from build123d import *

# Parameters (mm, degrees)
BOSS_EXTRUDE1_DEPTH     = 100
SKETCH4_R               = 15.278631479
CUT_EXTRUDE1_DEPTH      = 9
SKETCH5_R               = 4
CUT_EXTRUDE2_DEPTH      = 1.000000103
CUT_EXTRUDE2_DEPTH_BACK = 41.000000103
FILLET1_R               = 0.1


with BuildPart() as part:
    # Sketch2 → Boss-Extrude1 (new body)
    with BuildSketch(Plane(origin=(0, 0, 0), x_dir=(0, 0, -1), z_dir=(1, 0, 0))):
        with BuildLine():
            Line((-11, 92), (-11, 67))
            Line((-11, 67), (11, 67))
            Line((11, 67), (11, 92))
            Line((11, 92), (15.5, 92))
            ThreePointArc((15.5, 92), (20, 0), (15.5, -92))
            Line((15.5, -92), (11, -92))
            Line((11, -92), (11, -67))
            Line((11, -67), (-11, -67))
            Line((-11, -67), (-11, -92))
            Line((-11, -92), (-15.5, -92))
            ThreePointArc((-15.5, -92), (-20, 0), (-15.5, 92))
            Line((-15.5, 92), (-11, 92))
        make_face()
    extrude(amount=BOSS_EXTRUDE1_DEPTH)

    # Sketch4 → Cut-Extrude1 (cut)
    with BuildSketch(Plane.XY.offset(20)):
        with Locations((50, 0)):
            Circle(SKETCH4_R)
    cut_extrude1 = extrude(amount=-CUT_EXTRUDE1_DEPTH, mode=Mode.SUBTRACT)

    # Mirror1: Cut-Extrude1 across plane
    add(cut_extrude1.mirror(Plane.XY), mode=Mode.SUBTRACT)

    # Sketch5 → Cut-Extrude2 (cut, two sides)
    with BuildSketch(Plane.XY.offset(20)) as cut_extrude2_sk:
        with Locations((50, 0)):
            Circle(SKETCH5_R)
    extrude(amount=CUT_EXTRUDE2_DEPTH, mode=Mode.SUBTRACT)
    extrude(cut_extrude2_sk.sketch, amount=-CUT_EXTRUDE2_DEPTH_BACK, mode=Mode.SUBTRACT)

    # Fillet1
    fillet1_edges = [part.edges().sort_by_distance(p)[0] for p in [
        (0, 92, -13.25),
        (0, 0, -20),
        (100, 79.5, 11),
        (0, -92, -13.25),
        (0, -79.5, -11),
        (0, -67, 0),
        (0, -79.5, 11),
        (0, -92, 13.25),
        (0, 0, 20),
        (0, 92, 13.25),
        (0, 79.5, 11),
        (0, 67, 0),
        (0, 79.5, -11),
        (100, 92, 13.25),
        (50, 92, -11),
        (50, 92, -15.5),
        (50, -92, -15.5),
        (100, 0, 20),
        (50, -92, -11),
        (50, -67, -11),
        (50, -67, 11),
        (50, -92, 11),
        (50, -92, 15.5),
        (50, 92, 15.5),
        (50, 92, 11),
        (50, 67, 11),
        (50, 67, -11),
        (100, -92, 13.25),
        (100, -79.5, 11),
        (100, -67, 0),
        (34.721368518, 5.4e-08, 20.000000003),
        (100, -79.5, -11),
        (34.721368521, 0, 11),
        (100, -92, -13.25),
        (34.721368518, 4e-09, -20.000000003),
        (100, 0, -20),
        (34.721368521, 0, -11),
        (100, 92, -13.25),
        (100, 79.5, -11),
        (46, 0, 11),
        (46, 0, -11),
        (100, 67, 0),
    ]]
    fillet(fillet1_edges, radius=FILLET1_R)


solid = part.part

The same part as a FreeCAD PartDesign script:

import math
import FreeCAD as App
import Part
import Sketcher

doc = App.newDocument("Part")
body = doc.addObject("PartDesign::Body", "Body")

# Sketch on YZ plane
sketch1 = body.newObject("Sketcher::SketchObject", "Sketch")
sketch1.AttachmentSupport = (doc.getObject("YZ_Plane"), [""])
sketch1.MapMode = "FlatFace"
sketch1.addGeometry([
    Part.LineSegment(App.Vector(67, 11, 0), App.Vector(92, 11, 0)),  # 0
    Part.LineSegment(App.Vector(92, 11, 0), App.Vector(92, 15.5, 0)),  # 1
    Part.ArcOfCircle(Part.Circle(App.Vector(0, -922.7, 0), App.Vector(0, 0, 1), 942.7), math.radians(84.4), math.radians(95.6)),  # 2
    Part.LineSegment(App.Vector(-92, 15.5, 0), App.Vector(-92, 11, 0)),  # 3
    Part.LineSegment(App.Vector(-92, 11, 0), App.Vector(-67, 11, 0)),  # 4
    Part.LineSegment(App.Vector(-67, 11, 0), App.Vector(-67, -11, 0)),  # 5
    Part.LineSegment(App.Vector(-67, -11, 0), App.Vector(-92, -11, 0)),  # 6
    Part.LineSegment(App.Vector(-92, -11, 0), App.Vector(-92, -15.5, 0)),  # 7
    Part.ArcOfCircle(Part.Circle(App.Vector(0, 922.7, 0), App.Vector(0, 0, 1), 942.7), math.radians(-95.6), math.radians(-84.4)),  # 8
    Part.LineSegment(App.Vector(92, -15.5, 0), App.Vector(92, -11, 0)),  # 9
    Part.LineSegment(App.Vector(92, -11, 0), App.Vector(67, -11, 0)),  # 10
    Part.LineSegment(App.Vector(67, -11, 0), App.Vector(67, 11, 0)),  # 11
], False)
sketch1.addConstraint([
    Sketcher.Constraint("Coincident", 0, 2, 1, 1),
    Sketcher.Constraint("Coincident", 1, 2, 2, 1),
    Sketcher.Constraint("Coincident", 2, 2, 3, 1),
    Sketcher.Constraint("Coincident", 3, 2, 4, 1),
    Sketcher.Constraint("Coincident", 4, 2, 5, 1),
    Sketcher.Constraint("Coincident", 5, 2, 6, 1),
    Sketcher.Constraint("Coincident", 6, 2, 7, 1),
    Sketcher.Constraint("Coincident", 7, 2, 8, 1),
    Sketcher.Constraint("Coincident", 8, 2, 9, 1),
    Sketcher.Constraint("Coincident", 9, 2, 10, 1),
    Sketcher.Constraint("Coincident", 10, 2, 11, 1),
    Sketcher.Constraint("Coincident", 11, 2, 0, 1),
    Sketcher.Constraint("Horizontal", 0),
    Sketcher.Constraint("Vertical", 1),
    Sketcher.Constraint("Vertical", 3),
    Sketcher.Constraint("Horizontal", 4),
    Sketcher.Constraint("Vertical", 5),
    Sketcher.Constraint("Horizontal", 6),
    Sketcher.Constraint("Vertical", 7),
    Sketcher.Constraint("Vertical", 9),
    Sketcher.Constraint("Horizontal", 10),
    Sketcher.Constraint("Vertical", 11),
    Sketcher.Constraint("Equal", 2, 8),
    Sketcher.Constraint("Symmetric", 2, 3, 8, 3, -1, 1),
    Sketcher.Constraint("Symmetric", 0, 2, 6, 2, -1, 1),
    Sketcher.Constraint("Symmetric", 3, 2, 9, 2, -1, 1),
    Sketcher.Constraint("Symmetric", 0, 2, 3, 2, -2),
    Sketcher.Constraint("PointOnObject", 2, 3, -2),
    Sketcher.Constraint("Equal", 0, 4),
    Sketcher.Constraint("DistanceX", 0, 1, 0, 2, 25.0),
    Sketcher.Constraint("DistanceY", 5, 2, 5, 1, 22.0),
    Sketcher.Constraint("DistanceY", 1, 1, 1, 2, 4.5),
    Sketcher.Constraint("DistanceX", -1, 1, 0, 2, 92.0),
    Sketcher.Constraint("Radius", 2, 942.694444),
])
pad1 = body.newObject("PartDesign::Pad", "Pad")
pad1.Profile = sketch1
pad1.Length = 100

# Sketch on XY plane
sketch2 = body.newObject("Sketcher::SketchObject", "Sketch001")
sketch2.AttachmentSupport = (doc.getObject("XY_Plane"), [""])
sketch2.MapMode = "FlatFace"
sketch2.AttachmentOffset = App.Placement(App.Vector(0, 0, 20), App.Rotation())
sketch2.addGeometry(Part.Circle(App.Vector(50, 0, 0), App.Vector(0, 0, 1), 15), False)
sketch2.addConstraint([
    Sketcher.Constraint("PointOnObject", 0, 3, -1),
    Sketcher.Constraint("DistanceX", -1, 1, 0, 3, 50.0),
    Sketcher.Constraint("Diameter", 0, 30.557263),
])
pocket1 = body.newObject("PartDesign::Pocket", "Pocket")
pocket1.Profile = sketch2
pocket1.Length = 9
doc.recompute()

mirrored = body.newObject("PartDesign::Mirrored", "Mirrored")
mirrored.Originals = [pocket1]
mirrored.MirrorPlane = (doc.getObject("XY_Plane"), [""])
body.Tip = mirrored

# Sketch on XY plane
sketch3 = body.newObject("Sketcher::SketchObject", "Sketch002")
sketch3.AttachmentSupport = (doc.getObject("XY_Plane"), [""])
sketch3.MapMode = "FlatFace"
sketch3.AttachmentOffset = App.Placement(App.Vector(0, 0, 20), App.Rotation())
sketch3.addGeometry(Part.Circle(App.Vector(50, 0, 0), App.Vector(0, 0, 1), 4), False)
sketch3.addConstraint([
    Sketcher.Constraint("PointOnObject", 0, 3, -1),
    Sketcher.Constraint("Diameter", 0, 8.0),
    Sketcher.Constraint("DistanceX", -1, 1, 0, 3, 50.0),
])
pocket2 = body.newObject("PartDesign::Pocket", "Pocket001")
pocket2.Profile = sketch3
pocket2.Type = "ThroughAll"
pocket2.Midplane = True
doc.recompute()

fillet = body.newObject("PartDesign::Fillet", "Fillet")
fillet.Base = (pocket2, ["Edge1"])
fillet.UseAllEdges = True
fillet.Radius = 0.1

doc.recompute()
